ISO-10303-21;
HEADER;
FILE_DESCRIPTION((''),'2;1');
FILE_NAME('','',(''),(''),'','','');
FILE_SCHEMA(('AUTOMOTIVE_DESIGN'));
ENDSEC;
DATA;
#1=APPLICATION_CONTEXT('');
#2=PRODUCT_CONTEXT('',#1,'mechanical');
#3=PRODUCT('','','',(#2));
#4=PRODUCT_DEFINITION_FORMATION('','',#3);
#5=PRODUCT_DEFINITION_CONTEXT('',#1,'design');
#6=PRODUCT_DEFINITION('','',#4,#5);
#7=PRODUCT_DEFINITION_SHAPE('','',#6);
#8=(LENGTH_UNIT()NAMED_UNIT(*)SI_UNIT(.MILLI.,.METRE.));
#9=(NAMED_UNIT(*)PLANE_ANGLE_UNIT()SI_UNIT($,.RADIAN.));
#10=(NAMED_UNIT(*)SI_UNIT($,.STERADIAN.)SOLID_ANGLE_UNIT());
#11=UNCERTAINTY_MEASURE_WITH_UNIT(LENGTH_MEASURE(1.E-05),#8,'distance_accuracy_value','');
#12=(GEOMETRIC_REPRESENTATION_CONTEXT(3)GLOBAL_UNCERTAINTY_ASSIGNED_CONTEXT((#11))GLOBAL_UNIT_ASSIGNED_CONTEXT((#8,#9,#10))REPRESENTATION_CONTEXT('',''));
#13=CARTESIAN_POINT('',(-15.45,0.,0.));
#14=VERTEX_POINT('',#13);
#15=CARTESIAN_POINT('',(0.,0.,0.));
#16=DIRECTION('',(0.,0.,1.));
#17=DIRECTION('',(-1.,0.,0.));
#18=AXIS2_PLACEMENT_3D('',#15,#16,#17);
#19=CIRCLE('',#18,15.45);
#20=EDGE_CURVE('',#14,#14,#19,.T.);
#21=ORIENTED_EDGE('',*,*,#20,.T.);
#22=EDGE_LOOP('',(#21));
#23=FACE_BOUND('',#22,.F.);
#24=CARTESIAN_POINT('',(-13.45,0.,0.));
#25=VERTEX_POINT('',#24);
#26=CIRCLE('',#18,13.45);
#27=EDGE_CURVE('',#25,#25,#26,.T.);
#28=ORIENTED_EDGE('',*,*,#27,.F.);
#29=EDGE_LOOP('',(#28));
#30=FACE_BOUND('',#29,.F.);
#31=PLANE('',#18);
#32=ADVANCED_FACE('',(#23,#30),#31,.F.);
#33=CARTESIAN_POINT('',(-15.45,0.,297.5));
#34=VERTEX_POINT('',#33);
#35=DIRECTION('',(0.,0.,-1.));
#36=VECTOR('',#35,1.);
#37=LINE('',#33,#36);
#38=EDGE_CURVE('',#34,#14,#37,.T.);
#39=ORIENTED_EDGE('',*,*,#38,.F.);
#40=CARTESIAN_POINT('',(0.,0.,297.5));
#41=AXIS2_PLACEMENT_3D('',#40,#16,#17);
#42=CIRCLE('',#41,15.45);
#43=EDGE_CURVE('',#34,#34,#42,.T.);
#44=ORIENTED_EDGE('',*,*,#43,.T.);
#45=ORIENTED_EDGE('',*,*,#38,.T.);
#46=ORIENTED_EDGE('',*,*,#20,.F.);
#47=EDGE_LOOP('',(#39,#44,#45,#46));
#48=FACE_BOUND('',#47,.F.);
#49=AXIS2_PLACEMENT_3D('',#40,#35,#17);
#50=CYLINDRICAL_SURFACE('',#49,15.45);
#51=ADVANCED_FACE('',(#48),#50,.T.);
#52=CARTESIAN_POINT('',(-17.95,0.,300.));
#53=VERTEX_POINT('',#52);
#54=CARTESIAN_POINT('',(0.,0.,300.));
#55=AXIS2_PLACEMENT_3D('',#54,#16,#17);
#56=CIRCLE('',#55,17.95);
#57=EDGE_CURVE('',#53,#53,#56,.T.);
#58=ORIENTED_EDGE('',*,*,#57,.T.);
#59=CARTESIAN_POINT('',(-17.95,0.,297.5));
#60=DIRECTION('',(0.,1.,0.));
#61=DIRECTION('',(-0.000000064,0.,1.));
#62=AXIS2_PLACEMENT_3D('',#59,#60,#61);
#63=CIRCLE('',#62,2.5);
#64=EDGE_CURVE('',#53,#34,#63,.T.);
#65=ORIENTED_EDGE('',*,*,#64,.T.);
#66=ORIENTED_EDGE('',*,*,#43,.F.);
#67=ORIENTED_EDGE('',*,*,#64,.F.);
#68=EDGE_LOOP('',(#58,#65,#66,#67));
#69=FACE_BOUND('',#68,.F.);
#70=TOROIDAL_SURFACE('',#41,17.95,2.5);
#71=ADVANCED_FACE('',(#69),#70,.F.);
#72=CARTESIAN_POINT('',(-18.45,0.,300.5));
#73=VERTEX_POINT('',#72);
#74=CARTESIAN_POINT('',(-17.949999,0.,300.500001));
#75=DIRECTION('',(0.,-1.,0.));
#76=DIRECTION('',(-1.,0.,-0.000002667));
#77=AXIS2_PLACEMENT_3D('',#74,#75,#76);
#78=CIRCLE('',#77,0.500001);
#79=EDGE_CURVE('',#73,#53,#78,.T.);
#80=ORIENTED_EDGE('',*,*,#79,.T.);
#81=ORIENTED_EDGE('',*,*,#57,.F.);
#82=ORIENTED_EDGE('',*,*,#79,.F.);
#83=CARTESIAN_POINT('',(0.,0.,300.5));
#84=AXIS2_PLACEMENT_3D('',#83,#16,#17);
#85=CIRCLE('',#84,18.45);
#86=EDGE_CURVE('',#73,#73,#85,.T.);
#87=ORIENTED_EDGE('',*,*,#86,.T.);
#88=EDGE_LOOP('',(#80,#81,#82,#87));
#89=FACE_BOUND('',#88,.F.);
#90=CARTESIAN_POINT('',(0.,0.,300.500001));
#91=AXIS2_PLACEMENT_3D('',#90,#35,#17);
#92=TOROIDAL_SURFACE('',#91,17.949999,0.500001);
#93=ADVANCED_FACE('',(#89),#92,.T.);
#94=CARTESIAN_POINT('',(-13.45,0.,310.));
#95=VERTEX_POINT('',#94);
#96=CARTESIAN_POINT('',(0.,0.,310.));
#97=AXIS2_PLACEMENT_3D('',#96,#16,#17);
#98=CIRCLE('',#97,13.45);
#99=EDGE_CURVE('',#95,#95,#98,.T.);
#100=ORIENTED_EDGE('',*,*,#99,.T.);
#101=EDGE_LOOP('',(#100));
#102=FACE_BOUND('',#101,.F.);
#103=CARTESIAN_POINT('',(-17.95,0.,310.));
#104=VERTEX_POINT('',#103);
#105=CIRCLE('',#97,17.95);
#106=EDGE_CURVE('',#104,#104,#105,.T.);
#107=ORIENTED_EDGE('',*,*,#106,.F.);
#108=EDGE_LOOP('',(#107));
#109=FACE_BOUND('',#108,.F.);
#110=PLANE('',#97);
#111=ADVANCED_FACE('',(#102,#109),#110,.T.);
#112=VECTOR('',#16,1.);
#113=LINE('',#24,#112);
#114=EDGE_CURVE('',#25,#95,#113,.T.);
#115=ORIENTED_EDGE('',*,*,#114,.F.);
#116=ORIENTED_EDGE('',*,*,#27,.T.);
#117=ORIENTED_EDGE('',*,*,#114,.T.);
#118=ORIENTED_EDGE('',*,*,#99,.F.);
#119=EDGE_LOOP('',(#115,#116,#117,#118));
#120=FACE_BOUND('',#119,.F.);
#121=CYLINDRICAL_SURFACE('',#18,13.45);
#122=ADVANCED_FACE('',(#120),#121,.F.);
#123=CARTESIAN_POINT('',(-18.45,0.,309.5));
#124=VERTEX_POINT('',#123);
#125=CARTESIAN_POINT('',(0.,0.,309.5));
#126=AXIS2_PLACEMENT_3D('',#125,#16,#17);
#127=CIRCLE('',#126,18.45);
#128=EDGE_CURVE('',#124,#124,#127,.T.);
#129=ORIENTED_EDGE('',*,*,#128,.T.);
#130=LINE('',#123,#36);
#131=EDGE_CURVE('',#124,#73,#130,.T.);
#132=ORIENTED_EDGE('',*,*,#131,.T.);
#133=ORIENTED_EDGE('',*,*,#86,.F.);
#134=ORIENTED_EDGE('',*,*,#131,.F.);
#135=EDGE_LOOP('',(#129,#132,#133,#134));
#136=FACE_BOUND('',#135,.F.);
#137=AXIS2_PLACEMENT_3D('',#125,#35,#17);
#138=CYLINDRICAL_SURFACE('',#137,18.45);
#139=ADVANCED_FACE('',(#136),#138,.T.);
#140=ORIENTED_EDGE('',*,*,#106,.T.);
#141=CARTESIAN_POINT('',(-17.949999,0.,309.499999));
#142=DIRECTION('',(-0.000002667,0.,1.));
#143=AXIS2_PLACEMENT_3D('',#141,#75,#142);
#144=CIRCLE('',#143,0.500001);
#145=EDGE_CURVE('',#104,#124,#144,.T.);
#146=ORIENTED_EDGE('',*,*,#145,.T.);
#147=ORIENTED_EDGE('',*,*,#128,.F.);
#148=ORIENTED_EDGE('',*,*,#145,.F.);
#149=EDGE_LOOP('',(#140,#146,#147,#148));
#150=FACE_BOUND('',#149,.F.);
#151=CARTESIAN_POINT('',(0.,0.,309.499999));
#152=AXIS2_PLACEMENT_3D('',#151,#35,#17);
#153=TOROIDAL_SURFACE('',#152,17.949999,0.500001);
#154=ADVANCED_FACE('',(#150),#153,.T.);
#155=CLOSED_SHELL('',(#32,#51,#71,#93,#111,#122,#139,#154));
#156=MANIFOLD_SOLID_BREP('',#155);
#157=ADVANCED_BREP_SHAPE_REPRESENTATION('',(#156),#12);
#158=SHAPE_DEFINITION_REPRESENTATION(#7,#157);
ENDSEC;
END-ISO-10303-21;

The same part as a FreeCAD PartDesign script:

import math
import FreeCAD as App
import Part
import Sketcher
from FreeCAD import Vector

doc = App.newDocument("Part")
body = doc.addObject("PartDesign::Body", "Body")

# Sketch on XZ plane
sketch1 = body.newObject("Sketcher::SketchObject", "Sketch")
sketch1.AttachmentSupport = (doc.getObject("XZ_Plane"), [""])
sketch1.MapMode = "FlatFace"
sketch1.addGeometry(Part.LineSegment(Vector(-15.4, 0, 0), Vector(-13.4, 0, 0)), False)
sketch1.addGeometry(Part.LineSegment(Vector(-13.4, 0, 0), Vector(-13.4, 310, 0)), False)
sketch1.addGeometry(Part.LineSegment(Vector(-13.4, 310, 0), Vector(-17.9, 310, 0)), False)
sketch1.addGeometry(Part.ArcOfCircle(Part.Circle(Vector(-17.9, 309.5, 0), Vector(0, 0, 1), 0.5), math.radians(90), math.radians(180)), False)
sketch1.addGeometry(Part.LineSegment(Vector(-18.4, 309.5, 0), Vector(-18.4, 300.5, 0)), False)
sketch1.addGeometry(Part.ArcOfCircle(Part.Circle(Vector(-17.9, 300.5, 0), Vector(0, 0, 1), 0.5), math.radians(-180), math.radians(-90)), False)
sketch1.addGeometry(Part.ArcOfCircle(Part.Circle(Vector(-17.9, 297.5, 0), Vector(0, 0, 1), 2.5), math.radians(0), math.radians(90)), False)
sketch1.addGeometry(Part.LineSegment(Vector(-15.4, 297.5, 0), Vector(-15.4, 0, 0)), False)
sketch1.addConstraint(Sketcher.Constraint("Coincident", 0, 2, 1, 1))
sketch1.addConstraint(Sketcher.Constraint("Coincident", 1, 2, 2, 1))
sketch1.addConstraint(Sketcher.Constraint("Coincident", 2, 2, 3, 1))
sketch1.addConstraint(Sketcher.Constraint("Coincident", 3, 2, 4, 1))
sketch1.addConstraint(Sketcher.Constraint("Coincident", 4, 2, 5, 1))
sketch1.addConstraint(Sketcher.Constraint("Coincident", 5, 2, 6, 2))
sketch1.addConstraint(Sketcher.Constraint("Tangent", 6, 1, 7, 1))
sketch1.addConstraint(Sketcher.Constraint("Coincident", 7, 2, 0, 1))
sketch1.addConstraint(Sketcher.Constraint("Horizontal", 0))
sketch1.addConstraint(Sketcher.Constraint("Vertical", 1))
sketch1.addConstraint(Sketcher.Constraint("Horizontal", 2))
sketch1.addConstraint(Sketcher.Constraint("Vertical", 4))
sketch1.addConstraint(Sketcher.Constraint("Vertical", 7))
sketch1.addConstraint(Sketcher.Constraint("Equal", 3, 5))
sketch1.addConstraint(Sketcher.Constraint("PointOnObject", 0, 2, -1))
sketch1.addConstraint(Sketcher.Constraint("Horizontal", 5, 3, 4, 2))
sketch1.addConstraint(Sketcher.Constraint("Vertical", 5, 3, 6, 3))
sketch1.addConstraint(Sketcher.Constraint("Vertical", 6, 3, 2, 2))
sketch1.addConstraint(Sketcher.Constraint("Vertical", 2, 2, 5, 2))
sketch1.addConstraint(Sketcher.Constraint("Radius", 3, 0.500001))
sketch1.addConstraint(Sketcher.Constraint("Radius", 6, 2.5))
sketch1.addConstraint(Sketcher.Constraint("DistanceX", 0, 1, 0, 2, 2.0))
sketch1.addConstraint(Sketcher.Constraint("DistanceY", 1, 1, 1, 2, 310.0))
sketch1.addConstraint(Sketcher.Constraint("DistanceY", 4, 2, 4, 1, 9.0))
sketch1.addConstraint(Sketcher.Constraint("DistanceY", 7, 2, 7, 1, 297.5))
sketch1.addConstraint(Sketcher.Constraint("DistanceX", 3, 3, -1, 1, 17.949999))
revolution = body.newObject("PartDesign::Revolution", "Revolution")
revolution.Profile = sketch1
revolution.ReferenceAxis = (sketch1, ["V_Axis"])
revolution.Angle = 360

doc.recompute()
